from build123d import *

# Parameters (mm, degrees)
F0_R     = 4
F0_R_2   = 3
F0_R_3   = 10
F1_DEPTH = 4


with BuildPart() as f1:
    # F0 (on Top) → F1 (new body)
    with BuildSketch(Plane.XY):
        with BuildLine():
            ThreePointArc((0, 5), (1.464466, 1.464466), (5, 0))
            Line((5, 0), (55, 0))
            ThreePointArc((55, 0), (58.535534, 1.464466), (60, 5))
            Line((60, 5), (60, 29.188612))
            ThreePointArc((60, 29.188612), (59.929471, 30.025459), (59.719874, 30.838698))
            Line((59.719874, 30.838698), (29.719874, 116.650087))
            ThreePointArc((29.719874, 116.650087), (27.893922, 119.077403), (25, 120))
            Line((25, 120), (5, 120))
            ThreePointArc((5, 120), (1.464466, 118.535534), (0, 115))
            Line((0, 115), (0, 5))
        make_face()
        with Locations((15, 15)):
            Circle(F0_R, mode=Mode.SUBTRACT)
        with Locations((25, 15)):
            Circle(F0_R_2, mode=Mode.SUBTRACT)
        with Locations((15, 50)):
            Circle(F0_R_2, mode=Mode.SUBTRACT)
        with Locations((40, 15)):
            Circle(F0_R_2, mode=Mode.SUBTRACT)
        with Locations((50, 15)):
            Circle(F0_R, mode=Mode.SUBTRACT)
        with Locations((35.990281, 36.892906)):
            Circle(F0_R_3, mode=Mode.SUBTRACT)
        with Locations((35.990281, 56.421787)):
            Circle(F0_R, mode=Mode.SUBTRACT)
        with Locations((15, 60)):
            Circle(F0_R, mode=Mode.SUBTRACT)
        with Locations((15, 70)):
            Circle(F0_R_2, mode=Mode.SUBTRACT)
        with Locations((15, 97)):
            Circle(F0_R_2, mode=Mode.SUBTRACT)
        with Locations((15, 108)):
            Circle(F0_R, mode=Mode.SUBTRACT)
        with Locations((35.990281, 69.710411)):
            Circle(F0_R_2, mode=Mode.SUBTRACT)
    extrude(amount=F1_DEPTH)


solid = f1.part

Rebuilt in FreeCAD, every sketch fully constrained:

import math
import FreeCAD as App
import Part
import Sketcher
from FreeCAD import Vector

doc = App.newDocument("Part")
body = doc.addObject("PartDesign::Body", "Body")

# Sketch on XY plane
sketch1 = doc.addObject("Sketcher::SketchObject", "Sketch")
body.addObject(sketch1)
sketch1.AttachmentSupport = (doc.XY_Plane, [""])
sketch1.MapMode = "FlatFace"
sketch1.addGeometry([
    Part.ArcOfCircle(Part.Circle(Vector(5, 5, 0), Vector(0, 0, 1), 5), math.radians(180), math.radians(270)),  # 0
    Part.LineSegment(Vector(5, 0, 0), Vector(55, 0, 0)),  # 1
    Part.ArcOfCircle(Part.Circle(Vector(55, 5, 0), Vector(0, 0, 1), 5), math.radians(-90), math.radians(0)),  # 2
    Part.LineSegment(Vector(60, 5, 0), Vector(60, 29.2, 0)),  # 3
    Part.ArcOfCircle(Part.Circle(Vector(55, 29.2, 0), Vector(0, 0, 1), 5), math.radians(0), math.radians(19.27)),  # 4
    Part.LineSegment(Vector(59.7, 30.8, 0), Vector(29.7, 116.7, 0)),  # 5
    Part.ArcOfCircle(Part.Circle(Vector(25, 115, 0), Vector(0, 0, 1), 5), math.radians(19), math.radians(90)),  # 6
    Part.LineSegment(Vector(25, 120, 0), Vector(5, 120, 0)),  # 7
    Part.ArcOfCircle(Part.Circle(Vector(5, 115, 0), Vector(0, 0, 1), 5), math.radians(90), math.radians(180)),  # 8
    Part.LineSegment(Vector(0, 115, 0), Vector(0, 5, 0)),  # 9
    Part.Circle(Vector(15, 15, 0), Vector(0, 0, 1), 4),  # 10
    Part.Circle(Vector(25, 15, 0), Vector(0, 0, 1), 3),  # 11
    Part.Circle(Vector(15, 50, 0), Vector(0, 0, 1), 3),  # 12
    Part.Circle(Vector(15, 60, 0), Vector(0, 0, 1), 4),  # 13
    Part.Circle(Vector(40, 15, 0), Vector(0, 0, 1), 3),  # 14
    Part.Circle(Vector(50, 15, 0), Vector(0, 0, 1), 4),  # 15
    Part.Circle(Vector(36, 36.9, 0), Vector(0, 0, 1), 10),  # 16
    Part.Circle(Vector(36, 56.4, 0), Vector(0, 0, 1), 4),  # 17
    Part.Circle(Vector(15, 70, 0), Vector(0, 0, 1), 3),  # 18
    Part.Circle(Vector(15, 97, 0), Vector(0, 0, 1), 3),  # 19
    Part.Circle(Vector(15, 108, 0), Vector(0, 0, 1), 4),  # 20
    Part.Circle(Vector(36, 69.7, 0), Vector(0, 0, 1), 3),  # 21
], False)
sketch1.addConstraint([
    Sketcher.Constraint("Tangent", 0, 2, 1, 1),
    Sketcher.Constraint("Tangent", 1, 2, 2, 1),
    Sketcher.Constraint("Tangent", 2, 2, 3, 1),
    Sketcher.Constraint("Tangent", 3, 2, 4, 1),
    Sketcher.Constraint("Tangent", 4, 2, 5, 1),
    Sketcher.Constraint("Tangent", 5, 2, 6, 1),
    Sketcher.Constraint("Tangent", 6, 2, 7, 1),
    Sketcher.Constraint("Tangent", 7, 2, 8, 1),
    Sketcher.Constraint("Tangent", 8, 2, 9, 1),
    Sketcher.Constraint("Tangent", 9, 2, 0, 1),
    Sketcher.Constraint("Horizontal", 1),
    Sketcher.Constraint("Vertical", 3),
    Sketcher.Constraint("Horizontal", 7),
    Sketcher.Constraint("Vertical", 9),
    Sketcher.Constraint("Equal", 0, 2),
    Sketcher.Constraint("Equal", 2, 4),
    Sketcher.Constraint("Equal", 4, 6),
    Sketcher.Constraint("Equal", 6, 8),
    Sketcher.Constraint("Equal", 11, 12),
    Sketcher.Constraint("Equal", 10, 13),
    Sketcher.Constraint("Equal", 12, 14),
    Sketcher.Constraint("Equal", 13, 15),
    Sketcher.Constraint("Equal", 15, 17),
    Sketcher.Constraint("Equal", 14, 18),
    Sketcher.Constraint("Equal", 18, 19),
    Sketcher.Constraint("Equal", 17, 20),
    Sketcher.Constraint("Equal", 19, 21),
    Sketcher.Constraint("PointOnObject", 0, 2, -1),
    Sketcher.Constraint("PointOnObject", 8, 2, -2),
    Sketcher.Constraint("Horizontal", 10, 3, 11, 3),
    Sketcher.Constraint("Horizontal", 11, 3, 14, 3),
    Sketcher.Constraint("Horizontal", 14, 3, 15, 3),
    Sketcher.Constraint("Vertical", 6, 3, 11, 3),
    Sketcher.Constraint("Vertical", 10, 3, 12, 3),
    Sketcher.Constraint("Vertical", 12, 3, 13, 3),
    Sketcher.Constraint("Vertical", 16, 3, 17, 3),
    Sketcher.Constraint("Vertical", 13, 3, 18, 3),
    Sketcher.Constraint("Vertical", 18, 3, 19, 3),
    Sketcher.Constraint("Vertical", 19, 3, 20, 3),
    Sketcher.Constraint("Vertical", 17, 3, 21, 3),
    Sketcher.Constraint("Diameter", 10, 8.0),
    Sketcher.Constraint("Diameter", 11, 6.0),
    Sketcher.Constraint("Diameter", 16, 20.0),
    Sketcher.Constraint("Radius", 0, 5.0),
    Sketcher.Constraint("DistanceX", 1, 1, 1, 2, 50.0),
    Sketcher.Constraint("DistanceX", 7, 2, 7, 1, 20.0),
    Sketcher.Constraint("DistanceY", 9, 2, 9, 1, 110.0),
    Sketcher.Constraint("DistanceX", -1, 1, 10, 3, 15.0),
    Sketcher.Constraint("DistanceY", -1, 1, 10, 3, 15.0),
    Sketcher.Constraint("DistanceY", -1, 1, 12, 3, 50.0),
    Sketcher.Constraint("DistanceY", -1, 1, 13, 3, 60.0),
    Sketcher.Constraint("DistanceX", -1, 1, 14, 3, 40.0),
    Sketcher.Constraint("DistanceX", -1, 1, 15, 3, 50.0),
    Sketcher.Constraint("DistanceY", -1, 1, 18, 3, 70.0),
    Sketcher.Constraint("DistanceY", -1, 1, 19, 3, 97.0),
    Sketcher.Constraint("DistanceY", -1, 1, 20, 3, 108.0),
    Sketcher.Constraint("DistanceY", 3, 1, 3, 2, 24.188612),
    Sketcher.Constraint("DistanceX", -1, 1, 16, 3, 35.990281),
    Sketcher.Constraint("DistanceY", -1, 1, 21, 3, 69.710411),
    Sketcher.Constraint("DistanceY", 16, 3, 17, 3, 19.528881),
    Sketcher.Constraint("DistanceY", -1, 1, 16, 3, 36.892906),
])
pad1 = doc.addObject("PartDesign::Pad", "Pad")
body.addObject(pad1)
pad1.Profile = sketch1
pad1.Length = 4

doc.recompute()
